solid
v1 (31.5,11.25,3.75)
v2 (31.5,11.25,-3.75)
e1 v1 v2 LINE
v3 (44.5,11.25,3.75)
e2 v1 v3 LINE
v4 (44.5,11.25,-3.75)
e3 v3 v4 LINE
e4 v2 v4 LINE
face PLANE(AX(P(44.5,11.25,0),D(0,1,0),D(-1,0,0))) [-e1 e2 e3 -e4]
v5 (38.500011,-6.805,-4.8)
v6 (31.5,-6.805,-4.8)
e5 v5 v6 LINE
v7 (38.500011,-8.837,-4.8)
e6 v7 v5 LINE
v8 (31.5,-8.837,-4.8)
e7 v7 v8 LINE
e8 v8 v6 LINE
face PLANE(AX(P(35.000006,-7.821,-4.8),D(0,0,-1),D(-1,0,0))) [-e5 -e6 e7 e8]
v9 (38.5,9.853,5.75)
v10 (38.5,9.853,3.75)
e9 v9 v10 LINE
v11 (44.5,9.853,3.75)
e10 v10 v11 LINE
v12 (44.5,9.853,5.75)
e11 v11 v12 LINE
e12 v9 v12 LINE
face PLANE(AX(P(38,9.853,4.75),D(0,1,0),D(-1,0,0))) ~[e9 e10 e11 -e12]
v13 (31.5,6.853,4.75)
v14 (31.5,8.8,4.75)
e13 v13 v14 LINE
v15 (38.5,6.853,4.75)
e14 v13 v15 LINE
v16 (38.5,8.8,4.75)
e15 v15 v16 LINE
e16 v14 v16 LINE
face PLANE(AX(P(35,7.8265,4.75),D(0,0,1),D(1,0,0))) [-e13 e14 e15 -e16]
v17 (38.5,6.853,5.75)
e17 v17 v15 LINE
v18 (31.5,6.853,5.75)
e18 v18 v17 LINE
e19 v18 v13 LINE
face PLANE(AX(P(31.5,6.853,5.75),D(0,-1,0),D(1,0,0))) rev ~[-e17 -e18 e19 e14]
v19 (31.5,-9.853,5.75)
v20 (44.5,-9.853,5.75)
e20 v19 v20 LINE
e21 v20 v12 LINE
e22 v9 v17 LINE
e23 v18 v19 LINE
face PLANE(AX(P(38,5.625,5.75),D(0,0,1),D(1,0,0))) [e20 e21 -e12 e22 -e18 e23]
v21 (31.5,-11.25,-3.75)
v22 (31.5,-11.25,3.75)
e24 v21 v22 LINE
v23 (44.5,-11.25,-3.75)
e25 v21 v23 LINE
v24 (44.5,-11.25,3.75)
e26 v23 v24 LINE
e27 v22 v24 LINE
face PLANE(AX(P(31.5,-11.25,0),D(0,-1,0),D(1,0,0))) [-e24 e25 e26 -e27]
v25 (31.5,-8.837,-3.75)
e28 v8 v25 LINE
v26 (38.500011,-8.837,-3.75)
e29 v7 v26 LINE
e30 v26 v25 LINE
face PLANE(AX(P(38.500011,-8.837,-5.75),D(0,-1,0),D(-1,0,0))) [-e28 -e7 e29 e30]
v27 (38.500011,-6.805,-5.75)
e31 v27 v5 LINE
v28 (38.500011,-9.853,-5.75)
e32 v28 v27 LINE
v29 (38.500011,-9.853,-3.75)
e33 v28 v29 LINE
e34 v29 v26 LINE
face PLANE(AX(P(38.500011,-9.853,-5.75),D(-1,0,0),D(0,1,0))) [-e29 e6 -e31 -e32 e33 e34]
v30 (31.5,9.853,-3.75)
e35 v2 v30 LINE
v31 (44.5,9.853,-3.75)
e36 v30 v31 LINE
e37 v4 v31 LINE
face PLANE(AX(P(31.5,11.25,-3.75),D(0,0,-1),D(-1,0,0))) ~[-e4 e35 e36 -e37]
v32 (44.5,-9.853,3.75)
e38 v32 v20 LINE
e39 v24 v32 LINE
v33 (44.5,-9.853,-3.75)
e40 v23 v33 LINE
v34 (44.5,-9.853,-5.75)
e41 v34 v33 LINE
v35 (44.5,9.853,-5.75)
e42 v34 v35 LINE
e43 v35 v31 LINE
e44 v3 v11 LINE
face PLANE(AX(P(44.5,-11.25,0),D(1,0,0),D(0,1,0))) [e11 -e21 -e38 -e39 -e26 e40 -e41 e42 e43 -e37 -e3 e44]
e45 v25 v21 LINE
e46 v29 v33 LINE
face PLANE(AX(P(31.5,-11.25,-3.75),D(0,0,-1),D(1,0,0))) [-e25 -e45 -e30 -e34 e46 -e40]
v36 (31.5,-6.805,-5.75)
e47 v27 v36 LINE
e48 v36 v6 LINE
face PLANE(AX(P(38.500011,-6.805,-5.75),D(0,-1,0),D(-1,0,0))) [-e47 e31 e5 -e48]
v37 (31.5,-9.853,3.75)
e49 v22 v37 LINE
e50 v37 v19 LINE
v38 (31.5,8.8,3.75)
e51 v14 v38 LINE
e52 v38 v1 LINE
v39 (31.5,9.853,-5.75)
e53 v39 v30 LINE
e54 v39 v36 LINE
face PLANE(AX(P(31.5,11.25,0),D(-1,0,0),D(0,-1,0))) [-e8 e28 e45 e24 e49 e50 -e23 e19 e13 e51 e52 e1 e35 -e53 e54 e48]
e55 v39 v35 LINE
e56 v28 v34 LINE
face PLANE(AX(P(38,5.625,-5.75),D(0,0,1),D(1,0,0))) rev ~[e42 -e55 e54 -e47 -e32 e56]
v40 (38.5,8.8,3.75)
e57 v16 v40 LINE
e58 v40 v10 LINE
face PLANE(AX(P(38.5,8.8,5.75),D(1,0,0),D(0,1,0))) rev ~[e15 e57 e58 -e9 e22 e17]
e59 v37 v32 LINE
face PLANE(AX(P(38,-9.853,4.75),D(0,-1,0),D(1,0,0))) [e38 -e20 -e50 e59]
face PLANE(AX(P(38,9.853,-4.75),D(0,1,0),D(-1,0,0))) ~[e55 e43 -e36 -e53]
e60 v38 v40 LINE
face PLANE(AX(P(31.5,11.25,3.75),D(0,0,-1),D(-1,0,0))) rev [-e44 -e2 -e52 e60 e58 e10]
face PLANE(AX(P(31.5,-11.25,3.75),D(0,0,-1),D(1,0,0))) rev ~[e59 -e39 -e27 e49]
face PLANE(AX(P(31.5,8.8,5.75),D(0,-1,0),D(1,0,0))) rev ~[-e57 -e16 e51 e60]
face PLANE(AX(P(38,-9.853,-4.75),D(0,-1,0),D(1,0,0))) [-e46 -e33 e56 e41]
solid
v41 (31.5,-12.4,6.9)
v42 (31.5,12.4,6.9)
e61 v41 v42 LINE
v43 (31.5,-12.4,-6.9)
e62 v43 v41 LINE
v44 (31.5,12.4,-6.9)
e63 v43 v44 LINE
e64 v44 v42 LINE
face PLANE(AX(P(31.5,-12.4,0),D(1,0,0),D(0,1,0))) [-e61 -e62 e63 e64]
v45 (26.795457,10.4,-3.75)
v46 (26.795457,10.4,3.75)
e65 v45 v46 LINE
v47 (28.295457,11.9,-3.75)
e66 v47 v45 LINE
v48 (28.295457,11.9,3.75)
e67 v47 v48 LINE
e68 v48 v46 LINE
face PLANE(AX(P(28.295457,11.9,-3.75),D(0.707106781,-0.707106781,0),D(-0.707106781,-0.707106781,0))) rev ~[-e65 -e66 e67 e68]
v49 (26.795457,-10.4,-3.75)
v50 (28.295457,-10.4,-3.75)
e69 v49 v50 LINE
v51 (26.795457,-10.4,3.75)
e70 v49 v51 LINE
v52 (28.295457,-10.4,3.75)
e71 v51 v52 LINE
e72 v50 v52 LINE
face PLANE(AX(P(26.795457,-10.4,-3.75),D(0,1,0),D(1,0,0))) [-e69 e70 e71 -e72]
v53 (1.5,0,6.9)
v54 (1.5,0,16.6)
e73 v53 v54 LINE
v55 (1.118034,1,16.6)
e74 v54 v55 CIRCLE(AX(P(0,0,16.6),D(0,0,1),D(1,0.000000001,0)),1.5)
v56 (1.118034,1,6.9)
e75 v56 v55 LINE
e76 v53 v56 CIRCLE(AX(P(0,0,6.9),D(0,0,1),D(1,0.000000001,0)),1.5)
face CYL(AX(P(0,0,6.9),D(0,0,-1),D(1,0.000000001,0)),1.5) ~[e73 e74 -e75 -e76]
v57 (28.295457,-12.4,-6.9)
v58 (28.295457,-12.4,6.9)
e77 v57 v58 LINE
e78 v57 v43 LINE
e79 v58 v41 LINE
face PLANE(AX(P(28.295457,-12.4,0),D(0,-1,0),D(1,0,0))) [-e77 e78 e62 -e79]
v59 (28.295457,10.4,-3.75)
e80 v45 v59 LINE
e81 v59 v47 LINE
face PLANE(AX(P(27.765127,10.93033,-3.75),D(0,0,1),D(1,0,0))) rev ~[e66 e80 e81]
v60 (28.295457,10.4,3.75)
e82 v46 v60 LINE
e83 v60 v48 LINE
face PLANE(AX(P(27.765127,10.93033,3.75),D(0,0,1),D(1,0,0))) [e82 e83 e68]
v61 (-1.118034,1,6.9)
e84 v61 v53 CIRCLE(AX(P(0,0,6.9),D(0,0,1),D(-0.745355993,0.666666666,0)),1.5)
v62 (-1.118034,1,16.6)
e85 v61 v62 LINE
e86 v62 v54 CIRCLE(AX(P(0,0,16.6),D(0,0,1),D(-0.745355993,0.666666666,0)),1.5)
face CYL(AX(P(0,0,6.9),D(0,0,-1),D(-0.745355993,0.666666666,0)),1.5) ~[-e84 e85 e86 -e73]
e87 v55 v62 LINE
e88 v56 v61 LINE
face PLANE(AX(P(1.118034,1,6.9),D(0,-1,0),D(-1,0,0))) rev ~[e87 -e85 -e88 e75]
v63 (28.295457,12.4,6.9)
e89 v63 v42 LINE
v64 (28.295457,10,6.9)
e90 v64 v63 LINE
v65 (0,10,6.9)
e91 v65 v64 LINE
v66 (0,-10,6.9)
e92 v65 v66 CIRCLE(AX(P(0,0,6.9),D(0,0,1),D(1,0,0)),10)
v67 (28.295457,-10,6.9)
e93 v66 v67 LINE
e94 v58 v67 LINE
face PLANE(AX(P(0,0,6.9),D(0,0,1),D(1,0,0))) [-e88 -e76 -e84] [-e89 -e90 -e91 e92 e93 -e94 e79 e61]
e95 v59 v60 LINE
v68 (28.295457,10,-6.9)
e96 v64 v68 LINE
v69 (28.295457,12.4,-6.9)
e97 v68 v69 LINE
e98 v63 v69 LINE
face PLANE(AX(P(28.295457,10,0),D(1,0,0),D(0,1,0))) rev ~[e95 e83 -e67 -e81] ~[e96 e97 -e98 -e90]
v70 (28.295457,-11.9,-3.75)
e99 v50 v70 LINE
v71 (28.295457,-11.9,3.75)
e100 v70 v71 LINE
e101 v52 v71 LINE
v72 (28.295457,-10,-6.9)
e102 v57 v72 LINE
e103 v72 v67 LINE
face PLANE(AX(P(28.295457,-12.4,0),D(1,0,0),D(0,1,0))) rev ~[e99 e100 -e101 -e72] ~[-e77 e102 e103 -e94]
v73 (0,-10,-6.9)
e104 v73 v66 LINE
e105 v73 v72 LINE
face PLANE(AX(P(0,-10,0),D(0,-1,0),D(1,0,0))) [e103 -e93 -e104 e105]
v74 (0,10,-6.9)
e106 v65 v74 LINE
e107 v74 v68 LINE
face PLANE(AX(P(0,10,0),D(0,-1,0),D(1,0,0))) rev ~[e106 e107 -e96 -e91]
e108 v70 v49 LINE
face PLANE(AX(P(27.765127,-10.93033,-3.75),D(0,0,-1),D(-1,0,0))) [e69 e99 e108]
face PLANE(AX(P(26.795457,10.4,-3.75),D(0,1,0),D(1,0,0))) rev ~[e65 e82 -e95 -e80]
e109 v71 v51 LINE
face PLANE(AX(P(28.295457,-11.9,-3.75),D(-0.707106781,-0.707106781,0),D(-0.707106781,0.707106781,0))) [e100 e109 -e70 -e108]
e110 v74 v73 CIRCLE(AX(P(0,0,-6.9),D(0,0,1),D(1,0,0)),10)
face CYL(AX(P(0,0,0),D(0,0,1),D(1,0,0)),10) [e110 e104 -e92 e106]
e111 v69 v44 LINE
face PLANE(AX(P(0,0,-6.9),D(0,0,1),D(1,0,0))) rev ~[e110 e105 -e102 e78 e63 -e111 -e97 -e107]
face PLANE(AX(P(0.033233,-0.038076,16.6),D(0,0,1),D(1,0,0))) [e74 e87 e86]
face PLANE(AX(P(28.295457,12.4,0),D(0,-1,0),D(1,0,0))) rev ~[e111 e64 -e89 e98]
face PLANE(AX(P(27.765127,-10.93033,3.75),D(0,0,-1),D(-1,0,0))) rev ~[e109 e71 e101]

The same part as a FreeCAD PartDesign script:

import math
import FreeCAD as App
import Part
import Sketcher
Q = App.Units.Quantity

doc = App.newDocument("Part")
body = doc.addObject("PartDesign::Body", "Body")

sketch1 = body.newObject("Sketcher::SketchObject", "Sketch")
sketch1.AttachmentSupport = (doc.getObject("XY_Plane"), [""])
sketch1.MapMode = "FlatFace"
sketch1.addGeometry([
    Part.ArcOfCircle(Part.Circle(App.Vector(0, 0, 0), App.Vector(0, 0, 1), 10), math.radians(90), math.radians(270)),
    Part.LineSegment(App.Vector(0, -10, 0), App.Vector(28.295457, -10, 0)),
    Part.LineSegment(App.Vector(28.295457, -10, 0), App.Vector(28.295457, -12.4, 0)),
    Part.LineSegment(App.Vector(28.295457, -12.4, 0), App.Vector(31.5, -12.4, 0)),
    Part.LineSegment(App.Vector(31.5, -12.4, 0), App.Vector(31.5, 12.4, 0)),
    Part.LineSegment(App.Vector(31.5, 12.4, 0), App.Vector(28.295457, 12.4, 0)),
    Part.LineSegment(App.Vector(28.295457, 12.4, 0), App.Vector(28.295457, 10, 0)),
    Part.LineSegment(App.Vector(28.295457, 10, 0), App.Vector(0, 10, 0)),
], False)
sketch1.addConstraint([
    Sketcher.Constraint("Tangent", 0, 2, 1, 1),
    Sketcher.Constraint("Coincident", 1, 2, 2, 1),
    Sketcher.Constraint("Coincident", 2, 2, 3, 1),
    Sketcher.Constraint("Coincident", 3, 2, 4, 1),
    Sketcher.Constraint("Coincident", 4, 2, 5, 1),
    Sketcher.Constraint("Coincident", 5, 2, 6, 1),
    Sketcher.Constraint("Coincident", 6, 2, 7, 1),
    Sketcher.Constraint("Tangent", 7, 2, 0, 1),
    Sketcher.Constraint("Horizontal", 1),
    Sketcher.Constraint("Vertical", 2),
    Sketcher.Constraint("Horizontal", 3),
    Sketcher.Constraint("Vertical", 4),
    Sketcher.Constraint("Horizontal", 5),
    Sketcher.Constraint("Vertical", 6),
    Sketcher.Constraint("Horizontal", 7),
    Sketcher.Constraint("Coincident", 0, 3, -1, 1),
    Sketcher.Constraint("Symmetric", 2, 2, 5, 2, -1),
    Sketcher.Constraint("Radius", 0, Q("10 mm")),
    Sketcher.Constraint("DistanceY", 2, 2, 2, 1, Q("2.4 mm")),
    Sketcher.Constraint("DistanceX", -1, 1, 3, 2, Q("31.5 mm")),
    Sketcher.Constraint("DistanceX", 1, 1, 1, 2, Q("28.295457 mm")),
])
pad1 = body.newObject("PartDesign::Pad", "Pad")
pad1.Profile = sketch1
pad1.Length = 13.8
pad1.Midplane = True

sketch2 = body.newObject("Sketcher::SketchObject", "Sketch001")
sketch2.AttachmentSupport = (doc.getObject("XY_Plane"), [""])
sketch2.MapMode = "FlatFace"
sketch2.AttachmentOffset = App.Placement(App.Vector(0, 0, 6.9), App.Rotation())
sketch2.addGeometry([
    Part.LineSegment(App.Vector(1.118034, 1, 0), App.Vector(-1.118034, 1, 0)),
    Part.ArcOfCircle(Part.Circle(App.Vector(0, 0, 0), App.Vector(0, 0, 1), 1.5), math.radians(138.189685), math.radians(360)),
    Part.ArcOfCircle(Part.Circle(App.Vector(0, 0, 0), App.Vector(0, 0, 1), 1.5), math.radians(0), math.radians(41.810315)),
], False)
sketch2.addConstraint([
    Sketcher.Constraint("Coincident", 0, 2, 1, 1),
    Sketcher.Constraint("Tangent", 1, 2, 2, 1),
    Sketcher.Constraint("Coincident", 2, 2, 0, 1),
    Sketcher.Constraint("Horizontal", 0),
    Sketcher.Constraint("Coincident", 1, 3, -1, 1),
    Sketcher.Constraint("Equal", 1, 2),
    Sketcher.Constraint("PointOnObject", 1, 2, -1),
    Sketcher.Constraint("Radius", 1, Q("1.5 mm")),
    Sketcher.Constraint("DistanceY", -1, 1, 0, 2, Q("1 mm")),
])
pad2 = body.newObject("PartDesign::Pad", "Pad001")
pad2.Profile = sketch2
pad2.Length = 9.7

sketch3 = body.newObject("Sketcher::SketchObject", "Sketch002")
sketch3.AttachmentSupport = (doc.getObject("XY_Plane"), [""])
sketch3.MapMode = "FlatFace"
sketch3.AttachmentOffset = App.Placement(App.Vector(0, 0, -3.75), App.Rotation())
sketch3.addGeometry([
    Part.LineSegment(App.Vector(26.795457, 10.4, 0), App.Vector(28.295457, 10.4, 0)),
    Part.LineSegment(App.Vector(28.295457, 10.4, 0), App.Vector(28.295457, 11.9, 0)),
    Part.LineSegment(App.Vector(28.295457, 11.9, 0), App.Vector(26.795457, 10.4, 0)),
    Part.LineSegment(App.Vector(28.295457, -10.4, 0), App.Vector(26.795457, -10.4, 0)),
    Part.LineSegment(App.Vector(26.795457, -10.4, 0), App.Vector(28.295457, -11.9, 0)),
    Part.LineSegment(App.Vector(28.295457, -11.9, 0), App.Vector(28.295457, -10.4, 0)),
], False)
sketch3.addConstraint([
    Sketcher.Constraint("Coincident", 0, 2, 1, 1),
    Sketcher.Constraint("Coincident", 1, 2, 2, 1),
    Sketcher.Constraint("Coincident", 2, 2, 0, 1),
    Sketcher.Constraint("Coincident", 3, 2, 4, 1),
    Sketcher.Constraint("Coincident", 4, 2, 5, 1),
    Sketcher.Constraint("Coincident", 5, 2, 3, 1),
    Sketcher.Constraint("Horizontal", 0),
    Sketcher.Constraint("Vertical", 1),
    Sketcher.Constraint("Horizontal", 3),
    Sketcher.Constraint("Vertical", 5),
    Sketcher.Constraint("Symmetric", 2, 2, 3, 2, -1),
    Sketcher.Constraint("Symmetric", 1, 2, 4, 2, -1),
    Sketcher.Constraint("Perpendicular", 2, 4),
    Sketcher.Constraint("DistanceX", 0, 1, 0, 2, Q("1.5 mm")),
    Sketcher.Constraint("DistanceY", -1, 1, 0, 2, Q("10.4 mm")),
    Sketcher.Constraint("DistanceX", -1, 1, 0, 2, Q("28.295457 mm")),
])
pad3 = body.newObject("PartDesign::Pad", "Pad002")
pad3.Profile = sketch3
pad3.Length = 7.5
body2 = doc.addObject("PartDesign::Body", "Body001")

sketch4 = body2.newObject("Sketcher::SketchObject", "Sketch003")
sketch4.AttachmentSupport = (doc.getObject("XY_Plane001"), [""])
sketch4.MapMode = "FlatFace"
sketch4.addGeometry([
    Part.LineSegment(App.Vector(31.5, 11.25, 0), App.Vector(31.5, -11.25, 0)),
    Part.LineSegment(App.Vector(31.5, -11.25, 0), App.Vector(44.5, -11.25, 0)),
    Part.LineSegment(App.Vector(44.5, -11.25, 0), App.Vector(44.5, 11.25, 0)),
    Part.LineSegment(App.Vector(44.5, 11.25, 0), App.Vector(31.5, 11.25, 0)),
], False)
sketch4.addConstraint([
    Sketcher.Constraint("Coincident", 0, 2, 1, 1),
    Sketcher.Constraint("Coincident", 1, 2, 2, 1),
    Sketcher.Constraint("Coincident", 2, 2, 3, 1),
    Sketcher.Constraint("Coincident", 3, 2, 0, 1),
    Sketcher.Constraint("Vertical", 0),
    Sketcher.Constraint("Horizontal", 1),
    Sketcher.Constraint("Vertical", 2),
    Sketcher.Constraint("Horizontal", 3),
    Sketcher.Constraint("DistanceX", 1, 1, 1, 2, Q("13 mm")),
    Sketcher.Constraint("DistanceY", 0, 2, 0, 1, Q("22.5 mm")),
    Sketcher.Constraint("DistanceX", -1, 1, 0, 2, Q("31.5 mm")),
    Sketcher.Constraint("DistanceY", 0, 2, -1, 1, Q("11.25 mm")),
])
pad4 = body2.newObject("PartDesign::Pad", "Pad003")
pad4.Profile = sketch4
pad4.Length = 11.5
pad4.Midplane = True

sketch5 = body2.newObject("Sketcher::SketchObject", "Sketch004")
sketch5.AttachmentSupport = (doc.getObject("XZ_Plane001"), [""])
sketch5.MapMode = "FlatFace"
sketch5.AttachmentOffset = App.Placement(App.Vector(0, 0, 11.25), App.Rotation())
sketch5.addGeometry([
    Part.LineSegment(App.Vector(31.5, 5.75, 0), App.Vector(31.5, 3.75, 0)),
    Part.LineSegment(App.Vector(31.5, 3.75, 0), App.Vector(44.5, 3.75, 0)),
    Part.LineSegment(App.Vector(44.5, 3.75, 0), App.Vector(44.5, 5.75, 0)),
    Part.LineSegment(App.Vector(44.5, 5.75, 0), App.Vector(31.5, 5.75, 0)),
    Part.LineSegment(App.Vector(31.5, -3.75, 0), App.Vector(31.5, -5.75, 0)),
    Part.LineSegment(App.Vector(31.5, -5.75, 0), App.Vector(44.5, -5.75, 0)),
    Part.LineSegment(App.Vector(44.5, -5.75, 0), App.Vector(44.5, -3.75, 0)),
    Part.LineSegment(App.Vector(44.5, -3.75, 0), App.Vector(31.5, -3.75, 0)),
], False)
sketch5.addConstraint([
    Sketcher.Constraint("Coincident", 0, 2, 1, 1),
    Sketcher.Constraint("Coincident", 1, 2, 2, 1),
    Sketcher.Constraint("Coincident", 2, 2, 3, 1),
    Sketcher.Constraint("Coincident", 3, 2, 0, 1),
    Sketcher.Constraint("Coincident", 4, 2, 5, 1),
    Sketcher.Constraint("Coincident", 5, 2, 6, 1),
    Sketcher.Constraint("Coincident", 6, 2, 7, 1),
    Sketcher.Constraint("Coincident", 7, 2, 4, 1),
    Sketcher.Constraint("Vertical", 0),
    Sketcher.Constraint("Horizontal", 1),
    Sketcher.Constraint("Vertical", 2),
    Sketcher.Constraint("Horizontal", 3),
    Sketcher.Constraint("Vertical", 4),
    Sketcher.Constraint("Horizontal", 5),
    Sketcher.Constraint("Vertical", 6),
    Sketcher.Constraint("Horizontal", 7),
    Sketcher.Constraint("Symmetric", 3, 2, 4, 2, -1),
    Sketcher.Constraint("Symmetric", 1, 2, 6, 2, -1),
    Sketcher.Constraint("DistanceX", 1, 1, 1, 2, Q("13 mm")),
    Sketcher.Constraint("DistanceY", 0, 2, 0, 1, Q("2 mm")),
    Sketcher.Constraint("DistanceX", -1, 1, 0, 2, Q("31.5 mm")),
    Sketcher.Constraint("DistanceY", 4, 2, 0, 2, Q("9.5 mm")),
])
pocket1 = body2.newObject("PartDesign::Pocket", "Pocket")
pocket1.Profile = sketch5
pocket1.Length = 1.397
doc.recompute()

mirrored = body2.newObject("PartDesign::Mirrored", "Mirrored")
mirrored.Originals = [pocket1]
mirrored.MirrorPlane = (doc.getObject("XZ_Plane001"), [""])
body2.Tip = mirrored

sketch6 = body2.newObject("Sketcher::SketchObject", "Sketch005")
sketch6.AttachmentSupport = (doc.getObject("XY_Plane001"), [""])
sketch6.MapMode = "FlatFace"
sketch6.AttachmentOffset = App.Placement(App.Vector(0, 0, -5.75), App.Rotation())
sketch6.addGeometry([
    Part.LineSegment(App.Vector(38.500011, -8.837, 0), App.Vector(38.500011, -9.853, 0)),
    Part.LineSegment(App.Vector(38.500011, -9.853, 0), App.Vector(31.5, -9.853, 0)),
    Part.LineSegment(App.Vector(31.5, -9.853, 0), App.Vector(31.5, -8.837, 0)),
    Part.LineSegment(App.Vector(31.5, -8.837, 0), App.Vector(38.500011, -8.837, 0)),
], False)
sketch6.addConstraint([
    Sketcher.Constraint("Coincident", 0, 2, 1, 1),
    Sketcher.Constraint("Coincident", 1, 2, 2, 1),
    Sketcher.Constraint("Coincident", 2, 2, 3, 1),
    Sketcher.Constraint("Coincident", 3, 2, 0, 1),
    Sketcher.Constraint("Vertical", 0),
    Sketcher.Constraint("Horizontal", 1),
    Sketcher.Constraint("Vertical", 2),
    Sketcher.Constraint("Horizontal", 3),
    Sketcher.Constraint("DistanceX", -1, 1, 1, 2, Q("31.5 mm")),
    Sketcher.Constraint("DistanceY", 0, 2, 0, 1, Q("1.016 mm")),
    Sketcher.Constraint("DistanceY", 0, 2, -1, 1, Q("9.853 mm")),
    Sketcher.Constraint("DistanceX", 1, 2, 1, 1, Q("7.000011 mm")),
])
pocket2 = body2.newObject("PartDesign::Pocket", "Pocket001")
pocket2.Profile = sketch6
pocket2.Length = 2
pocket2.Reversed = True

sketch7 = body2.newObject("Sketcher::SketchObject", "Sketch006")
sketch7.AttachmentSupport = (doc.getObject("XY_Plane001"), [""])
sketch7.MapMode = "FlatFace"
sketch7.AttachmentOffset = App.Placement(App.Vector(0, 0, -5.75), App.Rotation())
sketch7.addGeometry([
    Part.LineSegment(App.Vector(38.500011, -6.805, 0), App.Vector(38.500011, -8.837, 0)),
    Part.LineSegment(App.Vector(38.500011, -8.837, 0), App.Vector(31.5, -8.837, 0)),
    Part.LineSegment(App.Vector(31.5, -8.837, 0), App.Vector(31.5, -6.805, 0)),
    Part.LineSegment(App.Vector(31.5, -6.805, 0), App.Vector(38.500011, -6.805, 0)),
], False)
sketch7.addConstraint([
    Sketcher.Constraint("Coincident", 0, 2, 1, 1),
    Sketcher.Constraint("Coincident", 1, 2, 2, 1),
    Sketcher.Constraint("Coincident", 2, 2, 3, 1),
    Sketcher.Constraint("Coincident", 3, 2, 0, 1),
    Sketcher.Constraint("Vertical", 0),
    Sketcher.Constraint("Horizontal", 1),
    Sketcher.Constraint("Vertical", 2),
    Sketcher.Constraint("Horizontal", 3),
    Sketcher.Constraint("DistanceX", -1, 1, 1, 2, Q("31.5 mm")),
    Sketcher.Constraint("DistanceY", 0, 2, 0, 1, Q("2.032 mm")),
    Sketcher.Constraint("DistanceY", 0, 2, -1, 1, Q("8.837 mm")),
    Sketcher.Constraint("DistanceX", 1, 2, 1, 1, Q("7.000011 mm")),
])
pocket3 = body2.newObject("PartDesign::Pocket", "Pocket002")
pocket3.Profile = sketch7
pocket3.Length = 0.95
pocket3.Reversed = True

sketch8 = body2.newObject("Sketcher::SketchObject", "Sketch007")
sketch8.AttachmentSupport = (doc.getObject("XY_Plane001"), [""])
sketch8.MapMode = "FlatFace"
sketch8.AttachmentOffset = App.Placement(App.Vector(0, 0, 5.75), App.Rotation())
sketch8.addGeometry([
    Part.LineSegment(App.Vector(31.5, 8.8, 0), App.Vector(31.5, 6.853, 0)),
    Part.LineSegment(App.Vector(31.5, 6.853, 0), App.Vector(38.5, 6.853, 0)),
    Part.LineSegment(App.Vector(38.5, 6.853, 0), App.Vector(38.5, 8.8, 0)),
    Part.LineSegment(App.Vector(38.5, 8.8, 0), App.Vector(31.5, 8.8, 0)),
], False)
sketch8.addConstraint([
    Sketcher.Constraint("Coincident", 0, 2, 1, 1),
    Sketcher.Constraint("Coincident", 1, 2, 2, 1),
    Sketcher.Constraint("Coincident", 2, 2, 3, 1),
    Sketcher.Constraint("Coincident", 3, 2, 0, 1),
    Sketcher.Constraint("Vertical", 0),
    Sketcher.Constraint("Horizontal", 1),
    Sketcher.Constraint("Vertical", 2),
    Sketcher.Constraint("Horizontal", 3),
    Sketcher.Constraint("DistanceX", 1, 1, 1, 2, Q("7 mm")),
    Sketcher.Constraint("DistanceX", -1, 1, 0, 2, Q("31.5 mm")),
    Sketcher.Constraint("DistanceY", -1, 1, 2, 2, Q("8.8 mm")),
    Sketcher.Constraint("DistanceY", 0, 2, 0, 1, Q("1.947 mm")),
])
pocket4 = body2.newObject("PartDesign::Pocket", "Pocket003")
pocket4.Profile = sketch8
pocket4.Length = 1

sketch9 = body2.newObject("Sketcher::SketchObject", "Sketch008")
sketch9.AttachmentSupport = (doc.getObject("XY_Plane001"), [""])
sketch9.MapMode = "FlatFace"
sketch9.AttachmentOffset = App.Placement(App.Vector(0, 0, 5.75), App.Rotation())
sketch9.addGeometry([
    Part.LineSegment(App.Vector(31.5, 9.853, 0), App.Vector(31.5, 8.8, 0)),
    Part.LineSegment(App.Vector(31.5, 8.8, 0), App.Vector(38.5, 8.8, 0)),
    Part.LineSegment(App.Vector(38.5, 8.8, 0), App.Vector(38.5, 9.853, 0)),
    Part.LineSegment(App.Vector(38.5, 9.853, 0), App.Vector(31.5, 9.853, 0)),
], False)
sketch9.addConstraint([
    Sketcher.Constraint("Coincident", 0, 2, 1, 1),
    Sketcher.Constraint("Coincident", 1, 2, 2, 1),
    Sketcher.Constraint("Coincident", 2, 2, 3, 1),
    Sketcher.Constraint("Coincident", 3, 2, 0, 1),
    Sketcher.Constraint("Vertical", 0),
    Sketcher.Constraint("Horizontal", 1),
    Sketcher.Constraint("Vertical", 2),
    Sketcher.Constraint("Horizontal", 3),
    Sketcher.Constraint("DistanceX", 1, 1, 1, 2, Q("7 mm")),
    Sketcher.Constraint("DistanceX", -1, 1, 0, 2, Q("31.5 mm")),
    Sketcher.Constraint("DistanceY", -1, 1, 0, 2, Q("8.8 mm")),
    Sketcher.Constraint("DistanceY", 0, 2, 0, 1, Q("1.053 mm")),
])
pocket5 = body2.newObject("PartDesign::Pocket", "Pocket004")
pocket5.Profile = sketch9
pocket5.Length = 2

doc.recompute()
